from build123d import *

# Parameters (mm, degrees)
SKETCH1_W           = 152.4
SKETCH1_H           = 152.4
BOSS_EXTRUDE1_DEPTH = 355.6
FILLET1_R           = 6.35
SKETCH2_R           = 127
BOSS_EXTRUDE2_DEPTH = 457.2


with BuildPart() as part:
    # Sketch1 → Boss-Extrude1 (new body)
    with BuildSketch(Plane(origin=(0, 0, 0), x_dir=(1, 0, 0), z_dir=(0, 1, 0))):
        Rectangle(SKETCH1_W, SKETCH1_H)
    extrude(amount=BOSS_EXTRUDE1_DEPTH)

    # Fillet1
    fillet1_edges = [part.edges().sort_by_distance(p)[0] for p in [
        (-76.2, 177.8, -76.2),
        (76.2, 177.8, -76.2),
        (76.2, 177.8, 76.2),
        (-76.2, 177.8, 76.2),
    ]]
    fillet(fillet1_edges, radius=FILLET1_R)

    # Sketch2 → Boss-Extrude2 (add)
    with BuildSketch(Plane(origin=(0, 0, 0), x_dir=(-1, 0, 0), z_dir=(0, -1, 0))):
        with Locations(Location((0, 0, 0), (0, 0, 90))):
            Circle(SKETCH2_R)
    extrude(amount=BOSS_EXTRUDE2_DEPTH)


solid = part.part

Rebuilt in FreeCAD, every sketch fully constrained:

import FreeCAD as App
import Part
import Sketcher
Q = App.Units.Quantity


def edges_at(feature, points):
    """Names of the edges that pass closest to the given points."""
    edges = feature.Shape.Edges
    near = lambda p: min(range(len(edges)), key=lambda i: edges[i].distToShape(Part.Vertex(*p))[0])
    return sorted({f"Edge{near(p) + 1}" for p in points})


def add_polygon(sketch, points):
    """Adds a closed chain of lines whose ends are joined by coincident constraints."""
    first, n = sketch.GeometryCount, len(points)
    for a, b in zip(points, points[1:] + points[:1]):
        sketch.addGeometry(Part.LineSegment(App.Vector(*a, 0), App.Vector(*b, 0)), False)
    for i in range(n):
        sketch.addConstraint(Sketcher.Constraint("Coincident", first + i, 2, first + (i + 1) % n, 1))

doc = App.newDocument("Part")
body = doc.addObject("PartDesign::Body", "Body")

# Sketch on XZ plane
sketch1 = doc.addObject("Sketcher::SketchObject", "Sketch")
body.addObject(sketch1)
sketch1.AttachmentSupport = (doc.XZ_Plane, [""])
sketch1.MapMode = "FlatFace"
add_polygon(sketch1, [(-76.2, -76.2), (-76.2, 76.2), (76.2, 76.2), (76.2, -76.2)])  # lines 0-3
sketch1.addConstraint([
    Sketcher.Constraint("Vertical", 0),
    Sketcher.Constraint("Horizontal", 1),
    Sketcher.Constraint("Vertical", 2),
    Sketcher.Constraint("Horizontal", 3),
    Sketcher.Constraint("Symmetric", 0, 2, 2, 2, -1, 1),
    Sketcher.Constraint("Equal", 3, 0),
    Sketcher.Constraint("DistanceX", 1, 1, 1, 2, Q("6 in")),
])
pad1 = doc.addObject("PartDesign::Pad", "Pad")
body.addObject(pad1)
pad1.Profile = sketch1
pad1.Length = Q("14 in")
pad1.Reversed = True
doc.recompute()

fillet = doc.addObject("PartDesign::Fillet", "Fillet")
body.addObject(fillet)
fillet.Base = (pad1, edges_at(pad1, [
    (-76.2, 177.8, -76.2),
    (76.2, 177.8, -76.2),
    (76.2, 177.8, 76.2),
    (-76.2, 177.8, 76.2),
]))
fillet.Radius = Q("0.25 in")

# Sketch on XZ plane
sketch2 = doc.addObject("Sketcher::SketchObject", "Sketch001")
body.addObject(sketch2)
sketch2.AttachmentSupport = (doc.XZ_Plane, [""])
sketch2.MapMode = "FlatFace"
sketch2.addGeometry(Part.Circle(App.Vector(0, 0, 0), App.Vector(0, 0, 1), 127), False)
sketch2.addConstraint([
    Sketcher.Constraint("Coincident", 0, 3, -1, 1),
    Sketcher.Constraint("Diameter", 0, Q("10 in")),
])
pad2 = doc.addObject("PartDesign::Pad", "Pad001")
body.addObject(pad2)
pad2.Profile = sketch2
pad2.Length = Q("18 in")

doc.recompute()
